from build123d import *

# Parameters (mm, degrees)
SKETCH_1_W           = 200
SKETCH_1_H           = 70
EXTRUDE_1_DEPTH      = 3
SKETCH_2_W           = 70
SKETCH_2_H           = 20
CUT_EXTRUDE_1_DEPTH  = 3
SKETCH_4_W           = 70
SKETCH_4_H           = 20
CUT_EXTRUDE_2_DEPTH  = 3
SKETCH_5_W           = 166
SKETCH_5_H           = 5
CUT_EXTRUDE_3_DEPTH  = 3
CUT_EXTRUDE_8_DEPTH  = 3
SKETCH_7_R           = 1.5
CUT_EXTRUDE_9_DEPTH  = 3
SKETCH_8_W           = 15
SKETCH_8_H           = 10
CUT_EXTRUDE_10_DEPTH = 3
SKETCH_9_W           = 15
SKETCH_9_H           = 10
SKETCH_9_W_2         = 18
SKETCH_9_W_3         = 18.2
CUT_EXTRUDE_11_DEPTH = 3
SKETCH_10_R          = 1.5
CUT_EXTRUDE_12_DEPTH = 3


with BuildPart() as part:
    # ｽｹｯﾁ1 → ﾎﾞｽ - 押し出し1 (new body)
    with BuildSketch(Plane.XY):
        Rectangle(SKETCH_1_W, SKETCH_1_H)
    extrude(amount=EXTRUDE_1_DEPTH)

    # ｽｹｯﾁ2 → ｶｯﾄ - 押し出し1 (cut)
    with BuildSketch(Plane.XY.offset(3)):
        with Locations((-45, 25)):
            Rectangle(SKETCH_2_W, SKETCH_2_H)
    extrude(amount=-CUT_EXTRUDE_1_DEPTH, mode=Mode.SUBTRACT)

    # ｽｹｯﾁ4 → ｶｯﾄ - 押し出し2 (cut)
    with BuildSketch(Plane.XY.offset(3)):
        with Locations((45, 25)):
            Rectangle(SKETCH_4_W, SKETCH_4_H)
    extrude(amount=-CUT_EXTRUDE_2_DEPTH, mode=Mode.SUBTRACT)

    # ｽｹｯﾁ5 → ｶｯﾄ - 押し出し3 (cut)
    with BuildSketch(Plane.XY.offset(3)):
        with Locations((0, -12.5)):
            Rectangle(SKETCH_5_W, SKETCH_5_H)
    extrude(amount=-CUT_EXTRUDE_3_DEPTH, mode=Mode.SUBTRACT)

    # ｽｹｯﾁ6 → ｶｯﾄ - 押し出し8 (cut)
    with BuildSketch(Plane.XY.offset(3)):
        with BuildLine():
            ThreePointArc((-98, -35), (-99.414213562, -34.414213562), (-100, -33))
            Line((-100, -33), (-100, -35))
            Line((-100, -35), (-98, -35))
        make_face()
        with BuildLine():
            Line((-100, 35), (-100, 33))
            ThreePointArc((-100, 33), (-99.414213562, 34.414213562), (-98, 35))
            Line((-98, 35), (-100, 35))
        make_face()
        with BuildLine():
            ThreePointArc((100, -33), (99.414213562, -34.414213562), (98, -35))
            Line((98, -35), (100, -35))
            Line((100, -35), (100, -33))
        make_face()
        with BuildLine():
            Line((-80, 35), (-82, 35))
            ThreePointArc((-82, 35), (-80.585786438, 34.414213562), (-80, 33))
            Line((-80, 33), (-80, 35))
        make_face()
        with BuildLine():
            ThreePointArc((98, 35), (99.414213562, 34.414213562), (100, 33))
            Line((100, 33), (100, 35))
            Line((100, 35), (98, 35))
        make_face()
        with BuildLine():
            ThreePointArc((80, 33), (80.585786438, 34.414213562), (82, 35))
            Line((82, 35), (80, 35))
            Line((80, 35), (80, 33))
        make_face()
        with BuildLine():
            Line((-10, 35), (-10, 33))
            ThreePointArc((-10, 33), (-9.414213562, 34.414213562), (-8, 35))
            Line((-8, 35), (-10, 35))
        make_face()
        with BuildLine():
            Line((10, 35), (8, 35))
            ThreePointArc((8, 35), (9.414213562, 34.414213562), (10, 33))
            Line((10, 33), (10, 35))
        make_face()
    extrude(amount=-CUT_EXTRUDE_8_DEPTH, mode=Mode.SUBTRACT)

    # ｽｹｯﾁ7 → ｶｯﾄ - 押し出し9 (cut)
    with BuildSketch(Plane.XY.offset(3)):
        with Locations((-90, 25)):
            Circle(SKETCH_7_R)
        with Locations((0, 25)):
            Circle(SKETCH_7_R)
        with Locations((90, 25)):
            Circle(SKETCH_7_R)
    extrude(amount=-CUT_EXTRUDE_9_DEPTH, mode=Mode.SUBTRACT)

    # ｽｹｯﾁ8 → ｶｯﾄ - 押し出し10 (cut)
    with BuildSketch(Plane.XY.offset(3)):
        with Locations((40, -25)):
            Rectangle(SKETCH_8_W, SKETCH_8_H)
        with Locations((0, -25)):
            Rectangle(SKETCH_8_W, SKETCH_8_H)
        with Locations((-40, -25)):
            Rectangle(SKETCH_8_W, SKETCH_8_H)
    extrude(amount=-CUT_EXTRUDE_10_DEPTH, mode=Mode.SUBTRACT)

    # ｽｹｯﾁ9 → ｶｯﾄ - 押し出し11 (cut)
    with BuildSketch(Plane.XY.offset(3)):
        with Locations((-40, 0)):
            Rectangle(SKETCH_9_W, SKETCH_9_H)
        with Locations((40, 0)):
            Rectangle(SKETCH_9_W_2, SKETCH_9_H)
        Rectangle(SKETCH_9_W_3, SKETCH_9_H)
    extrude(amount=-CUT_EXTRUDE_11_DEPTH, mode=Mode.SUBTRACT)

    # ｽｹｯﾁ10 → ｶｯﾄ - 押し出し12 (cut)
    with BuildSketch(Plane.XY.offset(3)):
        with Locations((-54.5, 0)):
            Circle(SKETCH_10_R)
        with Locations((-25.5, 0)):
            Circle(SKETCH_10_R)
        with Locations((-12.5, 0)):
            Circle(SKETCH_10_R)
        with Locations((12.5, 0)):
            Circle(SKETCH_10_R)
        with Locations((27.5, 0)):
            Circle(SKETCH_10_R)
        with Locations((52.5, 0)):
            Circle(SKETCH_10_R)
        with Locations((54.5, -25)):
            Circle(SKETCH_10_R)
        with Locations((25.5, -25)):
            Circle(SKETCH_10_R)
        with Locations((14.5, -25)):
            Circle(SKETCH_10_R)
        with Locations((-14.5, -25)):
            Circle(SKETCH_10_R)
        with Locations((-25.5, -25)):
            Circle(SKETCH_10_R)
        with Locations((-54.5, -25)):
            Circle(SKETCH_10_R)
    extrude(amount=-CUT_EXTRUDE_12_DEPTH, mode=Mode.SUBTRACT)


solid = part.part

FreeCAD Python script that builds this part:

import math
import FreeCAD as App
import Part
import Sketcher

V = App.Vector
Q = App.Units.Quantity

doc = App.newDocument("Part")
body = doc.addObject("PartDesign::Body", "Body")

sketch1 = body.newObject("Sketcher::SketchObject", "Sketch")
sketch1.AttachmentSupport = (doc.getObject("XY_Plane"), [""])
sketch1.MapMode = "FlatFace"
sketch1.addGeometry(Part.LineSegment(V(-100, 35, 0), V(-100, -35, 0)), False)
sketch1.addGeometry(Part.LineSegment(V(-100, -35, 0), V(100, -35, 0)), False)
sketch1.addGeometry(Part.LineSegment(V(100, -35, 0), V(100, 35, 0)), False)
sketch1.addGeometry(Part.LineSegment(V(100, 35, 0), V(-100, 35, 0)), False)
sketch1.addConstraint(Sketcher.Constraint("Coincident", 0, 2, 1, 1))
sketch1.addConstraint(Sketcher.Constraint("Coincident", 1, 2, 2, 1))
sketch1.addConstraint(Sketcher.Constraint("Coincident", 2, 2, 3, 1))
sketch1.addConstraint(Sketcher.Constraint("Coincident", 3, 2, 0, 1))
sketch1.addConstraint(Sketcher.Constraint("Vertical", 0))
sketch1.addConstraint(Sketcher.Constraint("Horizontal", 1))
sketch1.addConstraint(Sketcher.Constraint("Vertical", 2))
sketch1.addConstraint(Sketcher.Constraint("Horizontal", 3))
sketch1.addConstraint(Sketcher.Constraint("Symmetric", 0, 2, 2, 2, -1, 1))
sketch1.addConstraint(Sketcher.Constraint("DistanceX", 1, 1, 1, 2, Q("200 mm")))
sketch1.addConstraint(Sketcher.Constraint("DistanceY", 0, 2, 0, 1, Q("70 mm")))
pad1 = body.newObject("PartDesign::Pad", "Pad")
pad1.Profile = sketch1
pad1.Length = 3

sketch2 = body.newObject("Sketcher::SketchObject", "Sketch001")
sketch2.AttachmentSupport = (doc.getObject("XY_Plane"), [""])
sketch2.MapMode = "FlatFace"
sketch2.AttachmentOffset = App.Placement(V(0, 0, 3), App.Rotation())
sketch2.addGeometry(Part.LineSegment(V(-80, 35, 0), V(-80, 15, 0)), False)
sketch2.addGeometry(Part.LineSegment(V(-80, 15, 0), V(-10, 15, 0)), False)
sketch2.addGeometry(Part.LineSegment(V(-10, 15, 0), V(-10, 35, 0)), False)
sketch2.addGeometry(Part.LineSegment(V(-10, 35, 0), V(-80, 35, 0)), False)
sketch2.addConstraint(Sketcher.Constraint("Coincident", 0, 2, 1, 1))
sketch2.addConstraint(Sketcher.Constraint("Coincident", 1, 2, 2, 1))
sketch2.addConstraint(Sketcher.Constraint("Coincident", 2, 2, 3, 1))
sketch2.addConstraint(Sketcher.Constraint("Coincident", 3, 2, 0, 1))
sketch2.addConstraint(Sketcher.Constraint("Vertical", 0))
sketch2.addConstraint(Sketcher.Constraint("Horizontal", 1))
sketch2.addConstraint(Sketcher.Constraint("Vertical", 2))
sketch2.addConstraint(Sketcher.Constraint("Horizontal", 3))
sketch2.addConstraint(Sketcher.Constraint("DistanceX", 1, 1, 1, 2, Q("70 mm")))
sketch2.addConstraint(Sketcher.Constraint("DistanceY", 0, 2, 0, 1, Q("20 mm")))
sketch2.addConstraint(Sketcher.Constraint("DistanceX", 0, 2, -1, 1, Q("80 mm")))
sketch2.addConstraint(Sketcher.Constraint("DistanceY", -1, 1, 0, 2, Q("15 mm")))
pocket1 = body.newObject("PartDesign::Pocket", "Pocket")
pocket1.Profile = sketch2
pocket1.Length = 3

sketch3 = body.newObject("Sketcher::SketchObject", "Sketch002")
sketch3.AttachmentSupport = (doc.getObject("XY_Plane"), [""])
sketch3.MapMode = "FlatFace"
sketch3.AttachmentOffset = App.Placement(V(0, 0, 3), App.Rotation())
sketch3.addGeometry(Part.LineSegment(V(10, 35, 0), V(10, 15, 0)), False)
sketch3.addGeometry(Part.LineSegment(V(10, 15, 0), V(80, 15, 0)), False)
sketch3.addGeometry(Part.LineSegment(V(80, 15, 0), V(80, 35, 0)), False)
sketch3.addGeometry(Part.LineSegment(V(80, 35, 0), V(10, 35, 0)), False)
sketch3.addConstraint(Sketcher.Constraint("Coincident", 0, 2, 1, 1))
sketch3.addConstraint(Sketcher.Constraint("Coincident", 1, 2, 2, 1))
sketch3.addConstraint(Sketcher.Constraint("Coincident", 2, 2, 3, 1))
sketch3.addConstraint(Sketcher.Constraint("Coincident", 3, 2, 0, 1))
sketch3.addConstraint(Sketcher.Constraint("Vertical", 0))
sketch3.addConstraint(Sketcher.Constraint("Horizontal", 1))
sketch3.addConstraint(Sketcher.Constraint("Vertical", 2))
sketch3.addConstraint(Sketcher.Constraint("Horizontal", 3))
sketch3.addConstraint(Sketcher.Constraint("DistanceX", 1, 1, 1, 2, Q("70 mm")))
sketch3.addConstraint(Sketcher.Constraint("DistanceY", 0, 2, 0, 1, Q("20 mm")))
sketch3.addConstraint(Sketcher.Constraint("DistanceX", -1, 1, 0, 2, Q("10 mm")))
sketch3.addConstraint(Sketcher.Constraint("DistanceY", -1, 1, 0, 2, Q("15 mm")))
pocket2 = body.newObject("PartDesign::Pocket", "Pocket001")
pocket2.Profile = sketch3
pocket2.Length = 3

sketch4 = body.newObject("Sketcher::SketchObject", "Sketch003")
sketch4.AttachmentSupport = (doc.getObject("XY_Plane"), [""])
sketch4.MapMode = "FlatFace"
sketch4.AttachmentOffset = App.Placement(V(0, 0, 3), App.Rotation())
sketch4.addGeometry(Part.LineSegment(V(-83, -10, 0), V(-83, -15, 0)), False)
sketch4.addGeometry(Part.LineSegment(V(-83, -15, 0), V(83, -15, 0)), False)
sketch4.addGeometry(Part.LineSegment(V(83, -15, 0), V(83, -10, 0)), False)
sketch4.addGeometry(Part.LineSegment(V(83, -10, 0), V(-83, -10, 0)), False)
sketch4.addConstraint(Sketcher.Constraint("Coincident", 0, 2, 1, 1))
sketch4.addConstraint(Sketcher.Constraint("Coincident", 1, 2, 2, 1))
sketch4.addConstraint(Sketcher.Constraint("Coincident", 2, 2, 3, 1))
sketch4.addConstraint(Sketcher.Constraint("Coincident", 3, 2, 0, 1))
sketch4.addConstraint(Sketcher.Constraint("Vertical", 0))
sketch4.addConstraint(Sketcher.Constraint("Horizontal", 1))
sketch4.addConstraint(Sketcher.Constraint("Vertical", 2))
sketch4.addConstraint(Sketcher.Constraint("Horizontal", 3))
sketch4.addConstraint(Sketcher.Constraint("DistanceX", 1, 1, 1, 2, Q("166 mm")))
sketch4.addConstraint(Sketcher.Constraint("DistanceY", 0, 2, 0, 1, Q("5 mm")))
sketch4.addConstraint(Sketcher.Constraint("DistanceX", 0, 2, -1, 1, Q("83 mm")))
sketch4.addConstraint(Sketcher.Constraint("DistanceY", 0, 2, -1, 1, Q("15 mm")))
pocket3 = body.newObject("PartDesign::Pocket", "Pocket002")
pocket3.Profile = sketch4
pocket3.Length = 3

sketch5 = body.newObject("Sketcher::SketchObject", "Sketch004")
sketch5.AttachmentSupport = (doc.getObject("XY_Plane"), [""])
sketch5.MapMode = "FlatFace"
sketch5.AttachmentOffset = App.Placement(V(0, 0, 3), App.Rotation())
sketch5.addGeometry(Part.ArcOfCircle(Part.Circle(V(-98, -33, 0), V(0, 0, 1), 2), math.radians(-180), math.radians(-90)), False)
sketch5.addGeometry(Part.LineSegment(V(-100, -33, 0), V(-100, -35, 0)), False)
sketch5.addGeometry(Part.LineSegment(V(-100, -35, 0), V(-98, -35, 0)), False)
sketch5.addGeometry(Part.LineSegment(V(-100, 35, 0), V(-100, 33, 0)), False)
sketch5.addGeometry(Part.ArcOfCircle(Part.Circle(V(-98, 33, 0), V(0, 0, 1), 2), math.radians(90), math.radians(180)), False)
sketch5.addGeometry(Part.LineSegment(V(-98, 35, 0), V(-100, 35, 0)), False)
sketch5.addGeometry(Part.ArcOfCircle(Part.Circle(V(98, -33, 0), V(0, 0, 1), 2), math.radians(-90), math.radians(0)), False)
sketch5.addGeometry(Part.LineSegment(V(98, -35, 0), V(100, -35, 0)), False)
sketch5.addGeometry(Part.LineSegment(V(100, -35, 0), V(100, -33, 0)), False)
sketch5.addGeometry(Part.LineSegment(V(-80, 35, 0), V(-82, 35, 0)), False)
sketch5.addGeometry(Part.ArcOfCircle(Part.Circle(V(-82, 33, 0), V(0, 0, 1), 2), math.radians(0), math.radians(90)), False)
sketch5.addGeometry(Part.LineSegment(V(-80, 33, 0), V(-80, 35, 0)), False)
sketch5.addGeometry(Part.ArcOfCircle(Part.Circle(V(98, 33, 0), V(0, 0, 1), 2), math.radians(0), math.radians(90)), False)
sketch5.addGeometry(Part.LineSegment(V(100, 33, 0), V(100, 35, 0)), False)
sketch5.addGeometry(Part.LineSegment(V(100, 35, 0), V(98, 35, 0)), False)
sketch5.addGeometry(Part.ArcOfCircle(Part.Circle(V(82, 33, 0), V(0, 0, 1), 2), math.radians(90), math.radians(180)), False)
sketch5.addGeometry(Part.LineSegment(V(82, 35, 0), V(80, 35, 0)), False)
sketch5.addGeometry(Part.LineSegment(V(80, 35, 0), V(80, 33, 0)), False)
sketch5.addGeometry(Part.LineSegment(V(-10, 35, 0), V(-10, 33, 0)), False)
sketch5.addGeometry(Part.ArcOfCircle(Part.Circle(V(-8, 33, 0), V(0, 0, 1), 2), math.radians(90), math.radians(180)), False)
sketch5.addGeometry(Part.LineSegment(V(-8, 35, 0), V(-10, 35, 0)), False)
sketch5.addGeometry(Part.LineSegment(V(10, 35, 0), V(8, 35, 0)), False)
sketch5.addGeometry(Part.ArcOfCircle(Part.Circle(V(8, 33, 0), V(0, 0, 1), 2), math.radians(0), math.radians(90)), False)
sketch5.addGeometry(Part.LineSegment(V(10, 33, 0), V(10, 35, 0)), False)
sketch5.addConstraint(Sketcher.Constraint("Tangent", 0, 1, 1, 1))
sketch5.addConstraint(Sketcher.Constraint("Coincident", 1, 2, 2, 1))
sketch5.addConstraint(Sketcher.Constraint("Tangent", 2, 2, 0, 2))
sketch5.addConstraint(Sketcher.Constraint("Tangent", 3, 2, 4, 2))
sketch5.addConstraint(Sketcher.Constraint("Tangent", 4, 1, 5, 1))
sketch5.addConstraint(Sketcher.Constraint("Coincident", 5, 2, 3, 1))
sketch5.addConstraint(Sketcher.Constraint("Tangent", 6, 1, 7, 1))
sketch5.addConstraint(Sketcher.Constraint("Coincident", 7, 2, 8, 1))
sketch5.addConstraint(Sketcher.Constraint("Tangent", 8, 2, 6, 2))
sketch5.addConstraint(Sketcher.Constraint("Tangent", 9, 2, 10, 2))
sketch5.addConstraint(Sketcher.Constraint("Tangent", 10, 1, 11, 1))
sketch5.addConstraint(Sketcher.Constraint("Coincident", 11, 2, 9, 1))
sketch5.addConstraint(Sketcher.Constraint("Tangent", 12, 1, 13, 1))
sketch5.addConstraint(Sketcher.Constraint("Coincident", 13, 2, 14, 1))
sketch5.addConstraint(Sketcher.Constraint("Tangent", 14, 2, 12, 2))
sketch5.addConstraint(Sketcher.Constraint("Tangent", 15, 1, 16, 1))
sketch5.addConstraint(Sketcher.Constraint("Coincident", 16, 2, 17, 1))
sketch5.addConstraint(Sketcher.Constraint("Tangent", 17, 2, 15, 2))
sketch5.addConstraint(Sketcher.Constraint("Tangent", 18, 2, 19, 2))
sketch5.addConstraint(Sketcher.Constraint("Tangent", 19, 1, 20, 1))
sketch5.addConstraint(Sketcher.Constraint("Coincident", 20, 2, 18, 1))
sketch5.addConstraint(Sketcher.Constraint("Tangent", 21, 2, 22, 2))
sketch5.addConstraint(Sketcher.Constraint("Tangent", 22, 1, 23, 1))
sketch5.addConstraint(Sketcher.Constraint("Coincident", 23, 2, 21, 1))
sketch5.addConstraint(Sketcher.Constraint("Vertical", 1))
sketch5.addConstraint(Sketcher.Constraint("Horizontal", 2))
sketch5.addConstraint(Sketcher.Constraint("Vertical", 3))
sketch5.addConstraint(Sketcher.Constraint("Horizontal", 5))
sketch5.addConstraint(Sketcher.Constraint("Horizontal", 7))
sketch5.addConstraint(Sketcher.Constraint("Vertical", 8))
sketch5.addConstraint(Sketcher.Constraint("Horizontal", 9))
sketch5.addConstraint(Sketcher.Constraint("Vertical", 11))
sketch5.addConstraint(Sketcher.Constraint("Vertical", 13))
sketch5.addConstraint(Sketcher.Constraint("Horizontal", 14))
sketch5.addConstraint(Sketcher.Constraint("Horizontal", 16))
sketch5.addConstraint(Sketcher.Constraint("Vertical", 17))
sketch5.addConstraint(Sketcher.Constraint("Vertical", 18))
sketch5.addConstraint(Sketcher.Constraint("Horizontal", 20))
sketch5.addConstraint(Sketcher.Constraint("Horizontal", 21))
sketch5.addConstraint(Sketcher.Constraint("Vertical", 23))
sketch5.addConstraint(Sketcher.Constraint("Equal", 0, 4))
sketch5.addConstraint(Sketcher.Constraint("Equal", 4, 6))
sketch5.addConstraint(Sketcher.Constraint("Equal", 6, 10))
sketch5.addConstraint(Sketcher.Constraint("Equal", 10, 12))
sketch5.addConstraint(Sketcher.Constraint("Equal", 12, 15))
sketch5.addConstraint(Sketcher.Constraint("Equal", 15, 19))
sketch5.addConstraint(Sketcher.Constraint("Equal", 19, 22))
sketch5.addConstraint(Sketcher.Constraint("Symmetric", 4, 3, 6, 3, -1, 1))
sketch5.addConstraint(Sketcher.Constraint("Symmetric", 0, 3, 12, 3, -1, 1))
sketch5.addConstraint(Sketcher.Constraint("Symmetric", 0, 3, 6, 3, -2))
sketch5.addConstraint(Sketcher.Constraint("Symmetric", 10, 3, 15, 3, -2))
sketch5.addConstraint(Sketcher.Constraint("Symmetric", 19, 3, 22, 3, -2))
sketch5.addConstraint(Sketcher.Constraint("Horizontal", 4, 3, 10, 3))
sketch5.addConstraint(Sketcher.Constraint("Horizontal", 15, 3, 19, 3))
sketch5.addConstraint(Sketcher.Constraint("Radius", 0, Q("2 mm")))
sketch5.addConstraint(Sketcher.Constraint("DistanceX", 0, 3, -1, 1, Q("98 mm")))
sketch5.addConstraint(Sketcher.Constraint("DistanceY", 0, 3, -1, 1, Q("33 mm")))
sketch5.addConstraint(Sketcher.Constraint("DistanceX", 10, 3, -1, 1, Q("82 mm")))
sketch5.addConstraint(Sketcher.Constraint("DistanceX", 19, 3, -1, 1, Q("8 mm")))
pocket4 = body.newObject("PartDesign::Pocket", "Pocket003")
pocket4.Profile = sketch5
pocket4.Length = 3

sketch6 = body.newObject("Sketcher::SketchObject", "Sketch005")
sketch6.AttachmentSupport = (doc.getObject("XY_Plane"), [""])
sketch6.MapMode = "FlatFace"
sketch6.AttachmentOffset = App.Placement(V(0, 0, 3), App.Rotation())
sketch6.addGeometry(Part.Circle(V(-90, 25, 0), V(0, 0, 1), 1.5), False)
sketch6.addGeometry(Part.Circle(V(0, 25, 0), V(0, 0, 1), 1.5), False)
sketch6.addGeometry(Part.Circle(V(90, 25, 0), V(0, 0, 1), 1.5), False)
sketch6.addConstraint(Sketcher.Constraint("Equal", 0, 1))
sketch6.addConstraint(Sketcher.Constraint("Equal", 1, 2))
sketch6.addConstraint(Sketcher.Constraint("Symmetric", 0, 3, 2, 3, -2))
sketch6.addConstraint(Sketcher.Constraint("PointOnObject", 1, 3, -2))
sketch6.addConstraint(Sketcher.Constraint("Horizontal", 0, 3, 1, 3))
sketch6.addConstraint(Sketcher.Constraint("Diameter", 0, Q("3 mm")))
sketch6.addConstraint(Sketcher.Constraint("DistanceX", 0, 3, -1, 1, Q("90 mm")))
sketch6.addConstraint(Sketcher.Constraint("DistanceY", -1, 1, 0, 3, Q("25 mm")))
pocket5 = body.newObject("PartDesign::Pocket", "Pocket004")
pocket5.Profile = sketch6
pocket5.Length = 3

sketch7 = body.newObject("Sketcher::SketchObject", "Sketch006")
sketch7.AttachmentSupport = (doc.getObject("XY_Plane"), [""])
sketch7.MapMode = "FlatFace"
sketch7.AttachmentOffset = App.Placement(V(0, 0, 3), App.Rotation())
sketch7.addGeometry(Part.LineSegment(V(32, -20, 0), V(32, -30, 0)), False)
sketch7.addGeometry(Part.LineSegment(V(32, -30, 0), V(48, -30, 0)), False)
sketch7.addGeometry(Part.LineSegment(V(48, -30, 0), V(48, -20, 0)), False)
sketch7.addGeometry(Part.LineSegment(V(48, -20, 0), V(32, -20, 0)), False)
sketch7.addGeometry(Part.LineSegment(V(-8, -20, 0), V(-8, -30, 0)), False)
sketch7.addGeometry(Part.LineSegment(V(-8, -30, 0), V(8, -30, 0)), False)
sketch7.addGeometry(Part.LineSegment(V(8, -30, 0), V(8, -20, 0)), False)
sketch7.addGeometry(Part.LineSegment(V(8, -20, 0), V(-8, -20, 0)), False)
sketch7.addGeometry(Part.LineSegment(V(-48, -20, 0), V(-48, -30, 0)), False)
sketch7.addGeometry(Part.LineSegment(V(-48, -30, 0), V(-32, -30, 0)), False)
sketch7.addGeometry(Part.LineSegment(V(-32, -30, 0), V(-32, -20, 0)), False)
sketch7.addGeometry(Part.LineSegment(V(-32, -20, 0), V(-48, -20, 0)), False)
sketch7.addConstraint(Sketcher.Constraint("Coincident", 0, 2, 1, 1))
sketch7.addConstraint(Sketcher.Constraint("Coincident", 1, 2, 2, 1))
sketch7.addConstraint(Sketcher.Constraint("Coincident", 2, 2, 3, 1))
sketch7.addConstraint(Sketcher.Constraint("Coincident", 3, 2, 0, 1))
sketch7.addConstraint(Sketcher.Constraint("Coincident", 4, 2, 5, 1))
sketch7.addConstraint(Sketcher.Constraint("Coincident", 5, 2, 6, 1))
sketch7.addConstraint(Sketcher.Constraint("Coincident", 6, 2, 7, 1))
sketch7.addConstraint(Sketcher.Constraint("Coincident", 7, 2, 4, 1))
sketch7.addConstraint(Sketcher.Constraint("Coincident", 8, 2, 9, 1))
sketch7.addConstraint(Sketcher.Constraint("Coincident", 9, 2, 10, 1))
sketch7.addConstraint(Sketcher.Constraint("Coincident", 10, 2, 11, 1))
sketch7.addConstraint(Sketcher.Constraint("Coincident", 11, 2, 8, 1))
sketch7.addConstraint(Sketcher.Constraint("Vertical", 0))
sketch7.addConstraint(Sketcher.Constraint("Horizontal", 1))
sketch7.addConstraint(Sketcher.Constraint("Vertical", 2))
sketch7.addConstraint(Sketcher.Constraint("Horizontal", 3))
sketch7.addConstraint(Sketcher.Constraint("Vertical", 4))
sketch7.addConstraint(Sketcher.Constraint("Horizontal", 5))
sketch7.addConstraint(Sketcher.Constraint("Vertical", 6))
sketch7.addConstraint(Sketcher.Constraint("Horizontal", 7))
sketch7.addConstraint(Sketcher.Constraint("Vertical", 8))
sketch7.addConstraint(Sketcher.Constraint("Horizontal", 9))
sketch7.addConstraint(Sketcher.Constraint("Vertical", 10))
sketch7.addConstraint(Sketcher.Constraint("Horizontal", 11))
sketch7.addConstraint(Sketcher.Constraint("Symmetric", 1, 2, 8, 2, -2))
sketch7.addConstraint(Sketcher.Constraint("Symmetric", 3, 2, 10, 2, -2))
sketch7.addConstraint(Sketcher.Constraint("Horizontal", 1, 2, 4, 2))
sketch7.addConstraint(Sketcher.Constraint("Horizontal", 3, 2, 6, 2))
sketch7.addConstraint(Sketcher.Constraint("Equal", 3, 5))
sketch7.addConstraint(Sketcher.Constraint("DistanceX", 1, 1, 1, 2, Q("15 mm")))
sketch7.addConstraint(Sketcher.Constraint("DistanceY", 0, 2, 0, 1, Q("10 mm")))
sketch7.addConstraint(Sketcher.Constraint("DistanceY", 0, 2, -1, 1, Q("30 mm")))
sketch7.addConstraint(Sketcher.Constraint("DistanceX", 4, 2, 0, 2, Q("40 mm")))
sketch7.addConstraint(Sketcher.Constraint("DistanceX", 8, 2, 4, 2, Q("40 mm")))
pocket6 = body.newObject("PartDesign::Pocket", "Pocket005")
pocket6.Profile = sketch7
pocket6.Length = 3

sketch8 = body.newObject("Sketcher::SketchObject", "Sketch007")
sketch8.AttachmentSupport = (doc.getObject("XY_Plane"), [""])
sketch8.MapMode = "FlatFace"
sketch8.AttachmentOffset = App.Placement(V(0, 0, 3), App.Rotation())
sketch8.addGeometry(Part.LineSegment(V(-48, 5, 0), V(-48, -5, 0)), False)
sketch8.addGeometry(Part.LineSegment(V(-48, -5, 0), V(-32, -5, 0)), False)
sketch8.addGeometry(Part.LineSegment(V(-32, -5, 0), V(-32, 5, 0)), False)
sketch8.addGeometry(Part.LineSegment(V(-32, 5, 0), V(-48, 5, 0)), False)
sketch8.addGeometry(Part.LineSegment(V(31, 5, 0), V(31, -5, 0)), False)
sketch8.addGeometry(Part.LineSegment(V(31, -5, 0), V(49, -5, 0)), False)
sketch8.addGeometry(Part.LineSegment(V(49, -5, 0), V(49, 5, 0)), False)
sketch8.addGeometry(Part.LineSegment(V(49, 5, 0), V(31, 5, 0)), False)
sketch8.addGeometry(Part.LineSegment(V(-9, 5, 0), V(-9, -5, 0)), False)
sketch8.addGeometry(Part.LineSegment(V(-9, -5, 0), V(9, -5, 0)), False)
sketch8.addGeometry(Part.LineSegment(V(9, -5, 0), V(9, 5, 0)), False)
sketch8.addGeometry(Part.LineSegment(V(9, 5, 0), V(-9, 5, 0)), False)
sketch8.addConstraint(Sketcher.Constraint("Coincident", 0, 2, 1, 1))
sketch8.addConstraint(Sketcher.Constraint("Coincident", 1, 2, 2, 1))
sketch8.addConstraint(Sketcher.Constraint("Coincident", 2, 2, 3, 1))
sketch8.addConstraint(Sketcher.Constraint("Coincident", 3, 2, 0, 1))
sketch8.addConstraint(Sketcher.Constraint("Coincident", 4, 2, 5, 1))
sketch8.addConstraint(Sketcher.Constraint("Coincident", 5, 2, 6, 1))
sketch8.addConstraint(Sketcher.Constraint("Coincident", 6, 2, 7, 1))
sketch8.addConstraint(Sketcher.Constraint("Coincident", 7, 2, 4, 1))
sketch8.addConstraint(Sketcher.Constraint("Coincident", 8, 2, 9, 1))
sketch8.addConstraint(Sketcher.Constraint("Coincident", 9, 2, 10, 1))
sketch8.addConstraint(Sketcher.Constraint("Coincident", 10, 2, 11, 1))
sketch8.addConstraint(Sketcher.Constraint("Coincident", 11, 2, 8, 1))
sketch8.addConstraint(Sketcher.Constraint("Vertical", 0))
sketch8.addConstraint(Sketcher.Constraint("Horizontal", 1))
sketch8.addConstraint(Sketcher.Constraint("Vertical", 2))
sketch8.addConstraint(Sketcher.Constraint("Horizontal", 3))
sketch8.addConstraint(Sketcher.Constraint("Vertical", 4))
sketch8.addConstraint(Sketcher.Constraint("Horizontal", 5))
sketch8.addConstraint(Sketcher.Constraint("Vertical", 6))
sketch8.addConstraint(Sketcher.Constraint("Horizontal", 7))
sketch8.addConstraint(Sketcher.Constraint("Vertical", 8))
sketch8.addConstraint(Sketcher.Constraint("Horizontal", 9))
sketch8.addConstraint(Sketcher.Constraint("Vertical", 10))
sketch8.addConstraint(Sketcher.Constraint("Horizontal", 11))
sketch8.addConstraint(Sketcher.Constraint("Symmetric", 8, 2, 10, 2, -1, 1))
sketch8.addConstraint(Sketcher.Constraint("Horizontal", 1, 2, 4, 2))
sketch8.addConstraint(Sketcher.Constraint("Horizontal", 3, 2, 6, 2))
sketch8.addConstraint(Sketcher.Constraint("Horizontal", 5, 2, 8, 2))
sketch8.addConstraint(Sketcher.Constraint("Horizontal", 7, 2, 10, 2))
sketch8.addConstraint(Sketcher.Constraint("DistanceX", 1, 1, 1, 2, Q("15 mm")))
sketch8.addConstraint(Sketcher.Constraint("DistanceX", 5, 1, 5, 2, Q("18 mm")))
sketch8.addConstraint(Sketcher.Constraint("DistanceY", 0, 2, 0, 1, Q("10 mm")))
sketch8.addConstraint(Sketcher.Constraint("DistanceX", 9, 1, 9, 2, Q("18.2 mm")))
sketch8.addConstraint(Sketcher.Constraint("DistanceX", -1, 1, 4, 2, Q("31 mm")))
sketch8.addConstraint(Sketcher.Constraint("DistanceX", 0, 2, -1, 1, Q("47.5 mm")))
pocket7 = body.newObject("PartDesign::Pocket", "Pocket006")
pocket7.Profile = sketch8
pocket7.Length = 3

sketch9 = body.newObject("Sketcher::SketchObject", "Sketch008")
sketch9.AttachmentSupport = (doc.getObject("XY_Plane"), [""])
sketch9.MapMode = "FlatFace"
sketch9.AttachmentOffset = App.Placement(V(0, 0, 3), App.Rotation())
sketch9.addGeometry(Part.Circle(V(-54.5, 0, 0), V(0, 0, 1), 1.5), False)
sketch9.addGeometry(Part.Circle(V(-25.5, 0, 0), V(0, 0, 1), 1.5), False)
sketch9.addGeometry(Part.Circle(V(-12.5, 0, 0), V(0, 0, 1), 1.5), False)
sketch9.addGeometry(Part.Circle(V(12.5, 0, 0), V(0, 0, 1), 1.5), False)
sketch9.addGeometry(Part.Circle(V(27.5, 0, 0), V(0, 0, 1), 1.5), False)
sketch9.addGeometry(Part.Circle(V(52.5, 0, 0), V(0, 0, 1), 1.5), False)
sketch9.addGeometry(Part.Circle(V(54.5, -25, 0), V(0, 0, 1), 1.5), False)
sketch9.addGeometry(Part.Circle(V(25.5, -25, 0), V(0, 0, 1), 1.5), False)
sketch9.addGeometry(Part.Circle(V(14.5, -25, 0), V(0, 0, 1), 1.5), False)
sketch9.addGeometry(Part.Circle(V(-14.5, -25, 0), V(0, 0, 1), 1.5), False)
sketch9.addGeometry(Part.Circle(V(-25.5, -25, 0), V(0, 0, 1), 1.5), False)
sketch9.addGeometry(Part.Circle(V(-54.5, -25, 0), V(0, 0, 1), 1.5), False)
sketch9.addConstraint(Sketcher.Constraint("Equal", 0, 1))
sketch9.addConstraint(Sketcher.Constraint("Equal", 1, 2))
sketch9.addConstraint(Sketcher.Constraint("Equal", 2, 3))
sketch9.addConstraint(Sketcher.Constraint("Equal", 3, 4))
sketch9.addConstraint(Sketcher.Constraint("Equal", 4, 5))
sketch9.addConstraint(Sketcher.Constraint("Equal", 5, 6))
sketch9.addConstraint(Sketcher.Constraint("Equal", 6, 7))
sketch9.addConstraint(Sketcher.Constraint("Equal", 7, 8))
sketch9.addConstraint(Sketcher.Constraint("Equal", 8, 9))
sketch9.addConstraint(Sketcher.Constraint("Equal", 9, 10))
sketch9.addConstraint(Sketcher.Constraint("Equal", 10, 11))
sketch9.addConstraint(Sketcher.Constraint("Symmetric", 2, 3, 3, 3, -1, 1))
sketch9.addConstraint(Sketcher.Constraint("Symmetric", 8, 3, 9, 3, -2))
sketch9.addConstraint(Sketcher.Constraint("Symmetric", 7, 3, 10, 3, -2))
sketch9.addConstraint(Sketcher.Constraint("Symmetric", 6, 3, 11, 3, -2))
sketch9.addConstraint(Sketcher.Constraint("PointOnObject", 0, 3, -1))
sketch9.addConstraint(Sketcher.Constraint("PointOnObject", 1, 3, -1))
sketch9.addConstraint(Sketcher.Constraint("PointOnObject", 2, 3, -1))
sketch9.addConstraint(Sketcher.Constraint("PointOnObject", 4, 3, -1))
sketch9.addConstraint(Sketcher.Constraint("PointOnObject", 5, 3, -1))
sketch9.addConstraint(Sketcher.Constraint("Horizontal", 6, 3, 7, 3))
sketch9.addConstraint(Sketcher.Constraint("Horizontal", 7, 3, 8, 3))
sketch9.addConstraint(Sketcher.Constraint("Vertical", 1, 3, 10, 3))
sketch9.addConstraint(Sketcher.Constraint("Vertical", 0, 3, 11, 3))
sketch9.addConstraint(Sketcher.Constraint("Diameter", 0, Q("3 mm")))
sketch9.addConstraint(Sketcher.Constraint("DistanceY", 6, 3, -1, 1, Q("25 mm")))
sketch9.addConstraint(Sketcher.Constraint("DistanceX", 0, 3, 1, 3, Q("29 mm")))
sketch9.addConstraint(Sketcher.Constraint("DistanceX", 1, 3, 2, 3, Q("13 mm")))
sketch9.addConstraint(Sketcher.Constraint("DistanceX", 2, 3, 3, 3, Q("25 mm")))
sketch9.addConstraint(Sketcher.Constraint("DistanceX", 3, 3, 4, 3, Q("15 mm")))
sketch9.addConstraint(Sketcher.Constraint("DistanceX", 4, 3, 5, 3, Q("25 mm")))
sketch9.addConstraint(Sketcher.Constraint("DistanceX", 8, 3, 7, 3, Q("11 mm")))
pocket8 = body.newObject("PartDesign::Pocket", "Pocket007")
pocket8.Profile = sketch9
pocket8.Length = 3

doc.recompute()
